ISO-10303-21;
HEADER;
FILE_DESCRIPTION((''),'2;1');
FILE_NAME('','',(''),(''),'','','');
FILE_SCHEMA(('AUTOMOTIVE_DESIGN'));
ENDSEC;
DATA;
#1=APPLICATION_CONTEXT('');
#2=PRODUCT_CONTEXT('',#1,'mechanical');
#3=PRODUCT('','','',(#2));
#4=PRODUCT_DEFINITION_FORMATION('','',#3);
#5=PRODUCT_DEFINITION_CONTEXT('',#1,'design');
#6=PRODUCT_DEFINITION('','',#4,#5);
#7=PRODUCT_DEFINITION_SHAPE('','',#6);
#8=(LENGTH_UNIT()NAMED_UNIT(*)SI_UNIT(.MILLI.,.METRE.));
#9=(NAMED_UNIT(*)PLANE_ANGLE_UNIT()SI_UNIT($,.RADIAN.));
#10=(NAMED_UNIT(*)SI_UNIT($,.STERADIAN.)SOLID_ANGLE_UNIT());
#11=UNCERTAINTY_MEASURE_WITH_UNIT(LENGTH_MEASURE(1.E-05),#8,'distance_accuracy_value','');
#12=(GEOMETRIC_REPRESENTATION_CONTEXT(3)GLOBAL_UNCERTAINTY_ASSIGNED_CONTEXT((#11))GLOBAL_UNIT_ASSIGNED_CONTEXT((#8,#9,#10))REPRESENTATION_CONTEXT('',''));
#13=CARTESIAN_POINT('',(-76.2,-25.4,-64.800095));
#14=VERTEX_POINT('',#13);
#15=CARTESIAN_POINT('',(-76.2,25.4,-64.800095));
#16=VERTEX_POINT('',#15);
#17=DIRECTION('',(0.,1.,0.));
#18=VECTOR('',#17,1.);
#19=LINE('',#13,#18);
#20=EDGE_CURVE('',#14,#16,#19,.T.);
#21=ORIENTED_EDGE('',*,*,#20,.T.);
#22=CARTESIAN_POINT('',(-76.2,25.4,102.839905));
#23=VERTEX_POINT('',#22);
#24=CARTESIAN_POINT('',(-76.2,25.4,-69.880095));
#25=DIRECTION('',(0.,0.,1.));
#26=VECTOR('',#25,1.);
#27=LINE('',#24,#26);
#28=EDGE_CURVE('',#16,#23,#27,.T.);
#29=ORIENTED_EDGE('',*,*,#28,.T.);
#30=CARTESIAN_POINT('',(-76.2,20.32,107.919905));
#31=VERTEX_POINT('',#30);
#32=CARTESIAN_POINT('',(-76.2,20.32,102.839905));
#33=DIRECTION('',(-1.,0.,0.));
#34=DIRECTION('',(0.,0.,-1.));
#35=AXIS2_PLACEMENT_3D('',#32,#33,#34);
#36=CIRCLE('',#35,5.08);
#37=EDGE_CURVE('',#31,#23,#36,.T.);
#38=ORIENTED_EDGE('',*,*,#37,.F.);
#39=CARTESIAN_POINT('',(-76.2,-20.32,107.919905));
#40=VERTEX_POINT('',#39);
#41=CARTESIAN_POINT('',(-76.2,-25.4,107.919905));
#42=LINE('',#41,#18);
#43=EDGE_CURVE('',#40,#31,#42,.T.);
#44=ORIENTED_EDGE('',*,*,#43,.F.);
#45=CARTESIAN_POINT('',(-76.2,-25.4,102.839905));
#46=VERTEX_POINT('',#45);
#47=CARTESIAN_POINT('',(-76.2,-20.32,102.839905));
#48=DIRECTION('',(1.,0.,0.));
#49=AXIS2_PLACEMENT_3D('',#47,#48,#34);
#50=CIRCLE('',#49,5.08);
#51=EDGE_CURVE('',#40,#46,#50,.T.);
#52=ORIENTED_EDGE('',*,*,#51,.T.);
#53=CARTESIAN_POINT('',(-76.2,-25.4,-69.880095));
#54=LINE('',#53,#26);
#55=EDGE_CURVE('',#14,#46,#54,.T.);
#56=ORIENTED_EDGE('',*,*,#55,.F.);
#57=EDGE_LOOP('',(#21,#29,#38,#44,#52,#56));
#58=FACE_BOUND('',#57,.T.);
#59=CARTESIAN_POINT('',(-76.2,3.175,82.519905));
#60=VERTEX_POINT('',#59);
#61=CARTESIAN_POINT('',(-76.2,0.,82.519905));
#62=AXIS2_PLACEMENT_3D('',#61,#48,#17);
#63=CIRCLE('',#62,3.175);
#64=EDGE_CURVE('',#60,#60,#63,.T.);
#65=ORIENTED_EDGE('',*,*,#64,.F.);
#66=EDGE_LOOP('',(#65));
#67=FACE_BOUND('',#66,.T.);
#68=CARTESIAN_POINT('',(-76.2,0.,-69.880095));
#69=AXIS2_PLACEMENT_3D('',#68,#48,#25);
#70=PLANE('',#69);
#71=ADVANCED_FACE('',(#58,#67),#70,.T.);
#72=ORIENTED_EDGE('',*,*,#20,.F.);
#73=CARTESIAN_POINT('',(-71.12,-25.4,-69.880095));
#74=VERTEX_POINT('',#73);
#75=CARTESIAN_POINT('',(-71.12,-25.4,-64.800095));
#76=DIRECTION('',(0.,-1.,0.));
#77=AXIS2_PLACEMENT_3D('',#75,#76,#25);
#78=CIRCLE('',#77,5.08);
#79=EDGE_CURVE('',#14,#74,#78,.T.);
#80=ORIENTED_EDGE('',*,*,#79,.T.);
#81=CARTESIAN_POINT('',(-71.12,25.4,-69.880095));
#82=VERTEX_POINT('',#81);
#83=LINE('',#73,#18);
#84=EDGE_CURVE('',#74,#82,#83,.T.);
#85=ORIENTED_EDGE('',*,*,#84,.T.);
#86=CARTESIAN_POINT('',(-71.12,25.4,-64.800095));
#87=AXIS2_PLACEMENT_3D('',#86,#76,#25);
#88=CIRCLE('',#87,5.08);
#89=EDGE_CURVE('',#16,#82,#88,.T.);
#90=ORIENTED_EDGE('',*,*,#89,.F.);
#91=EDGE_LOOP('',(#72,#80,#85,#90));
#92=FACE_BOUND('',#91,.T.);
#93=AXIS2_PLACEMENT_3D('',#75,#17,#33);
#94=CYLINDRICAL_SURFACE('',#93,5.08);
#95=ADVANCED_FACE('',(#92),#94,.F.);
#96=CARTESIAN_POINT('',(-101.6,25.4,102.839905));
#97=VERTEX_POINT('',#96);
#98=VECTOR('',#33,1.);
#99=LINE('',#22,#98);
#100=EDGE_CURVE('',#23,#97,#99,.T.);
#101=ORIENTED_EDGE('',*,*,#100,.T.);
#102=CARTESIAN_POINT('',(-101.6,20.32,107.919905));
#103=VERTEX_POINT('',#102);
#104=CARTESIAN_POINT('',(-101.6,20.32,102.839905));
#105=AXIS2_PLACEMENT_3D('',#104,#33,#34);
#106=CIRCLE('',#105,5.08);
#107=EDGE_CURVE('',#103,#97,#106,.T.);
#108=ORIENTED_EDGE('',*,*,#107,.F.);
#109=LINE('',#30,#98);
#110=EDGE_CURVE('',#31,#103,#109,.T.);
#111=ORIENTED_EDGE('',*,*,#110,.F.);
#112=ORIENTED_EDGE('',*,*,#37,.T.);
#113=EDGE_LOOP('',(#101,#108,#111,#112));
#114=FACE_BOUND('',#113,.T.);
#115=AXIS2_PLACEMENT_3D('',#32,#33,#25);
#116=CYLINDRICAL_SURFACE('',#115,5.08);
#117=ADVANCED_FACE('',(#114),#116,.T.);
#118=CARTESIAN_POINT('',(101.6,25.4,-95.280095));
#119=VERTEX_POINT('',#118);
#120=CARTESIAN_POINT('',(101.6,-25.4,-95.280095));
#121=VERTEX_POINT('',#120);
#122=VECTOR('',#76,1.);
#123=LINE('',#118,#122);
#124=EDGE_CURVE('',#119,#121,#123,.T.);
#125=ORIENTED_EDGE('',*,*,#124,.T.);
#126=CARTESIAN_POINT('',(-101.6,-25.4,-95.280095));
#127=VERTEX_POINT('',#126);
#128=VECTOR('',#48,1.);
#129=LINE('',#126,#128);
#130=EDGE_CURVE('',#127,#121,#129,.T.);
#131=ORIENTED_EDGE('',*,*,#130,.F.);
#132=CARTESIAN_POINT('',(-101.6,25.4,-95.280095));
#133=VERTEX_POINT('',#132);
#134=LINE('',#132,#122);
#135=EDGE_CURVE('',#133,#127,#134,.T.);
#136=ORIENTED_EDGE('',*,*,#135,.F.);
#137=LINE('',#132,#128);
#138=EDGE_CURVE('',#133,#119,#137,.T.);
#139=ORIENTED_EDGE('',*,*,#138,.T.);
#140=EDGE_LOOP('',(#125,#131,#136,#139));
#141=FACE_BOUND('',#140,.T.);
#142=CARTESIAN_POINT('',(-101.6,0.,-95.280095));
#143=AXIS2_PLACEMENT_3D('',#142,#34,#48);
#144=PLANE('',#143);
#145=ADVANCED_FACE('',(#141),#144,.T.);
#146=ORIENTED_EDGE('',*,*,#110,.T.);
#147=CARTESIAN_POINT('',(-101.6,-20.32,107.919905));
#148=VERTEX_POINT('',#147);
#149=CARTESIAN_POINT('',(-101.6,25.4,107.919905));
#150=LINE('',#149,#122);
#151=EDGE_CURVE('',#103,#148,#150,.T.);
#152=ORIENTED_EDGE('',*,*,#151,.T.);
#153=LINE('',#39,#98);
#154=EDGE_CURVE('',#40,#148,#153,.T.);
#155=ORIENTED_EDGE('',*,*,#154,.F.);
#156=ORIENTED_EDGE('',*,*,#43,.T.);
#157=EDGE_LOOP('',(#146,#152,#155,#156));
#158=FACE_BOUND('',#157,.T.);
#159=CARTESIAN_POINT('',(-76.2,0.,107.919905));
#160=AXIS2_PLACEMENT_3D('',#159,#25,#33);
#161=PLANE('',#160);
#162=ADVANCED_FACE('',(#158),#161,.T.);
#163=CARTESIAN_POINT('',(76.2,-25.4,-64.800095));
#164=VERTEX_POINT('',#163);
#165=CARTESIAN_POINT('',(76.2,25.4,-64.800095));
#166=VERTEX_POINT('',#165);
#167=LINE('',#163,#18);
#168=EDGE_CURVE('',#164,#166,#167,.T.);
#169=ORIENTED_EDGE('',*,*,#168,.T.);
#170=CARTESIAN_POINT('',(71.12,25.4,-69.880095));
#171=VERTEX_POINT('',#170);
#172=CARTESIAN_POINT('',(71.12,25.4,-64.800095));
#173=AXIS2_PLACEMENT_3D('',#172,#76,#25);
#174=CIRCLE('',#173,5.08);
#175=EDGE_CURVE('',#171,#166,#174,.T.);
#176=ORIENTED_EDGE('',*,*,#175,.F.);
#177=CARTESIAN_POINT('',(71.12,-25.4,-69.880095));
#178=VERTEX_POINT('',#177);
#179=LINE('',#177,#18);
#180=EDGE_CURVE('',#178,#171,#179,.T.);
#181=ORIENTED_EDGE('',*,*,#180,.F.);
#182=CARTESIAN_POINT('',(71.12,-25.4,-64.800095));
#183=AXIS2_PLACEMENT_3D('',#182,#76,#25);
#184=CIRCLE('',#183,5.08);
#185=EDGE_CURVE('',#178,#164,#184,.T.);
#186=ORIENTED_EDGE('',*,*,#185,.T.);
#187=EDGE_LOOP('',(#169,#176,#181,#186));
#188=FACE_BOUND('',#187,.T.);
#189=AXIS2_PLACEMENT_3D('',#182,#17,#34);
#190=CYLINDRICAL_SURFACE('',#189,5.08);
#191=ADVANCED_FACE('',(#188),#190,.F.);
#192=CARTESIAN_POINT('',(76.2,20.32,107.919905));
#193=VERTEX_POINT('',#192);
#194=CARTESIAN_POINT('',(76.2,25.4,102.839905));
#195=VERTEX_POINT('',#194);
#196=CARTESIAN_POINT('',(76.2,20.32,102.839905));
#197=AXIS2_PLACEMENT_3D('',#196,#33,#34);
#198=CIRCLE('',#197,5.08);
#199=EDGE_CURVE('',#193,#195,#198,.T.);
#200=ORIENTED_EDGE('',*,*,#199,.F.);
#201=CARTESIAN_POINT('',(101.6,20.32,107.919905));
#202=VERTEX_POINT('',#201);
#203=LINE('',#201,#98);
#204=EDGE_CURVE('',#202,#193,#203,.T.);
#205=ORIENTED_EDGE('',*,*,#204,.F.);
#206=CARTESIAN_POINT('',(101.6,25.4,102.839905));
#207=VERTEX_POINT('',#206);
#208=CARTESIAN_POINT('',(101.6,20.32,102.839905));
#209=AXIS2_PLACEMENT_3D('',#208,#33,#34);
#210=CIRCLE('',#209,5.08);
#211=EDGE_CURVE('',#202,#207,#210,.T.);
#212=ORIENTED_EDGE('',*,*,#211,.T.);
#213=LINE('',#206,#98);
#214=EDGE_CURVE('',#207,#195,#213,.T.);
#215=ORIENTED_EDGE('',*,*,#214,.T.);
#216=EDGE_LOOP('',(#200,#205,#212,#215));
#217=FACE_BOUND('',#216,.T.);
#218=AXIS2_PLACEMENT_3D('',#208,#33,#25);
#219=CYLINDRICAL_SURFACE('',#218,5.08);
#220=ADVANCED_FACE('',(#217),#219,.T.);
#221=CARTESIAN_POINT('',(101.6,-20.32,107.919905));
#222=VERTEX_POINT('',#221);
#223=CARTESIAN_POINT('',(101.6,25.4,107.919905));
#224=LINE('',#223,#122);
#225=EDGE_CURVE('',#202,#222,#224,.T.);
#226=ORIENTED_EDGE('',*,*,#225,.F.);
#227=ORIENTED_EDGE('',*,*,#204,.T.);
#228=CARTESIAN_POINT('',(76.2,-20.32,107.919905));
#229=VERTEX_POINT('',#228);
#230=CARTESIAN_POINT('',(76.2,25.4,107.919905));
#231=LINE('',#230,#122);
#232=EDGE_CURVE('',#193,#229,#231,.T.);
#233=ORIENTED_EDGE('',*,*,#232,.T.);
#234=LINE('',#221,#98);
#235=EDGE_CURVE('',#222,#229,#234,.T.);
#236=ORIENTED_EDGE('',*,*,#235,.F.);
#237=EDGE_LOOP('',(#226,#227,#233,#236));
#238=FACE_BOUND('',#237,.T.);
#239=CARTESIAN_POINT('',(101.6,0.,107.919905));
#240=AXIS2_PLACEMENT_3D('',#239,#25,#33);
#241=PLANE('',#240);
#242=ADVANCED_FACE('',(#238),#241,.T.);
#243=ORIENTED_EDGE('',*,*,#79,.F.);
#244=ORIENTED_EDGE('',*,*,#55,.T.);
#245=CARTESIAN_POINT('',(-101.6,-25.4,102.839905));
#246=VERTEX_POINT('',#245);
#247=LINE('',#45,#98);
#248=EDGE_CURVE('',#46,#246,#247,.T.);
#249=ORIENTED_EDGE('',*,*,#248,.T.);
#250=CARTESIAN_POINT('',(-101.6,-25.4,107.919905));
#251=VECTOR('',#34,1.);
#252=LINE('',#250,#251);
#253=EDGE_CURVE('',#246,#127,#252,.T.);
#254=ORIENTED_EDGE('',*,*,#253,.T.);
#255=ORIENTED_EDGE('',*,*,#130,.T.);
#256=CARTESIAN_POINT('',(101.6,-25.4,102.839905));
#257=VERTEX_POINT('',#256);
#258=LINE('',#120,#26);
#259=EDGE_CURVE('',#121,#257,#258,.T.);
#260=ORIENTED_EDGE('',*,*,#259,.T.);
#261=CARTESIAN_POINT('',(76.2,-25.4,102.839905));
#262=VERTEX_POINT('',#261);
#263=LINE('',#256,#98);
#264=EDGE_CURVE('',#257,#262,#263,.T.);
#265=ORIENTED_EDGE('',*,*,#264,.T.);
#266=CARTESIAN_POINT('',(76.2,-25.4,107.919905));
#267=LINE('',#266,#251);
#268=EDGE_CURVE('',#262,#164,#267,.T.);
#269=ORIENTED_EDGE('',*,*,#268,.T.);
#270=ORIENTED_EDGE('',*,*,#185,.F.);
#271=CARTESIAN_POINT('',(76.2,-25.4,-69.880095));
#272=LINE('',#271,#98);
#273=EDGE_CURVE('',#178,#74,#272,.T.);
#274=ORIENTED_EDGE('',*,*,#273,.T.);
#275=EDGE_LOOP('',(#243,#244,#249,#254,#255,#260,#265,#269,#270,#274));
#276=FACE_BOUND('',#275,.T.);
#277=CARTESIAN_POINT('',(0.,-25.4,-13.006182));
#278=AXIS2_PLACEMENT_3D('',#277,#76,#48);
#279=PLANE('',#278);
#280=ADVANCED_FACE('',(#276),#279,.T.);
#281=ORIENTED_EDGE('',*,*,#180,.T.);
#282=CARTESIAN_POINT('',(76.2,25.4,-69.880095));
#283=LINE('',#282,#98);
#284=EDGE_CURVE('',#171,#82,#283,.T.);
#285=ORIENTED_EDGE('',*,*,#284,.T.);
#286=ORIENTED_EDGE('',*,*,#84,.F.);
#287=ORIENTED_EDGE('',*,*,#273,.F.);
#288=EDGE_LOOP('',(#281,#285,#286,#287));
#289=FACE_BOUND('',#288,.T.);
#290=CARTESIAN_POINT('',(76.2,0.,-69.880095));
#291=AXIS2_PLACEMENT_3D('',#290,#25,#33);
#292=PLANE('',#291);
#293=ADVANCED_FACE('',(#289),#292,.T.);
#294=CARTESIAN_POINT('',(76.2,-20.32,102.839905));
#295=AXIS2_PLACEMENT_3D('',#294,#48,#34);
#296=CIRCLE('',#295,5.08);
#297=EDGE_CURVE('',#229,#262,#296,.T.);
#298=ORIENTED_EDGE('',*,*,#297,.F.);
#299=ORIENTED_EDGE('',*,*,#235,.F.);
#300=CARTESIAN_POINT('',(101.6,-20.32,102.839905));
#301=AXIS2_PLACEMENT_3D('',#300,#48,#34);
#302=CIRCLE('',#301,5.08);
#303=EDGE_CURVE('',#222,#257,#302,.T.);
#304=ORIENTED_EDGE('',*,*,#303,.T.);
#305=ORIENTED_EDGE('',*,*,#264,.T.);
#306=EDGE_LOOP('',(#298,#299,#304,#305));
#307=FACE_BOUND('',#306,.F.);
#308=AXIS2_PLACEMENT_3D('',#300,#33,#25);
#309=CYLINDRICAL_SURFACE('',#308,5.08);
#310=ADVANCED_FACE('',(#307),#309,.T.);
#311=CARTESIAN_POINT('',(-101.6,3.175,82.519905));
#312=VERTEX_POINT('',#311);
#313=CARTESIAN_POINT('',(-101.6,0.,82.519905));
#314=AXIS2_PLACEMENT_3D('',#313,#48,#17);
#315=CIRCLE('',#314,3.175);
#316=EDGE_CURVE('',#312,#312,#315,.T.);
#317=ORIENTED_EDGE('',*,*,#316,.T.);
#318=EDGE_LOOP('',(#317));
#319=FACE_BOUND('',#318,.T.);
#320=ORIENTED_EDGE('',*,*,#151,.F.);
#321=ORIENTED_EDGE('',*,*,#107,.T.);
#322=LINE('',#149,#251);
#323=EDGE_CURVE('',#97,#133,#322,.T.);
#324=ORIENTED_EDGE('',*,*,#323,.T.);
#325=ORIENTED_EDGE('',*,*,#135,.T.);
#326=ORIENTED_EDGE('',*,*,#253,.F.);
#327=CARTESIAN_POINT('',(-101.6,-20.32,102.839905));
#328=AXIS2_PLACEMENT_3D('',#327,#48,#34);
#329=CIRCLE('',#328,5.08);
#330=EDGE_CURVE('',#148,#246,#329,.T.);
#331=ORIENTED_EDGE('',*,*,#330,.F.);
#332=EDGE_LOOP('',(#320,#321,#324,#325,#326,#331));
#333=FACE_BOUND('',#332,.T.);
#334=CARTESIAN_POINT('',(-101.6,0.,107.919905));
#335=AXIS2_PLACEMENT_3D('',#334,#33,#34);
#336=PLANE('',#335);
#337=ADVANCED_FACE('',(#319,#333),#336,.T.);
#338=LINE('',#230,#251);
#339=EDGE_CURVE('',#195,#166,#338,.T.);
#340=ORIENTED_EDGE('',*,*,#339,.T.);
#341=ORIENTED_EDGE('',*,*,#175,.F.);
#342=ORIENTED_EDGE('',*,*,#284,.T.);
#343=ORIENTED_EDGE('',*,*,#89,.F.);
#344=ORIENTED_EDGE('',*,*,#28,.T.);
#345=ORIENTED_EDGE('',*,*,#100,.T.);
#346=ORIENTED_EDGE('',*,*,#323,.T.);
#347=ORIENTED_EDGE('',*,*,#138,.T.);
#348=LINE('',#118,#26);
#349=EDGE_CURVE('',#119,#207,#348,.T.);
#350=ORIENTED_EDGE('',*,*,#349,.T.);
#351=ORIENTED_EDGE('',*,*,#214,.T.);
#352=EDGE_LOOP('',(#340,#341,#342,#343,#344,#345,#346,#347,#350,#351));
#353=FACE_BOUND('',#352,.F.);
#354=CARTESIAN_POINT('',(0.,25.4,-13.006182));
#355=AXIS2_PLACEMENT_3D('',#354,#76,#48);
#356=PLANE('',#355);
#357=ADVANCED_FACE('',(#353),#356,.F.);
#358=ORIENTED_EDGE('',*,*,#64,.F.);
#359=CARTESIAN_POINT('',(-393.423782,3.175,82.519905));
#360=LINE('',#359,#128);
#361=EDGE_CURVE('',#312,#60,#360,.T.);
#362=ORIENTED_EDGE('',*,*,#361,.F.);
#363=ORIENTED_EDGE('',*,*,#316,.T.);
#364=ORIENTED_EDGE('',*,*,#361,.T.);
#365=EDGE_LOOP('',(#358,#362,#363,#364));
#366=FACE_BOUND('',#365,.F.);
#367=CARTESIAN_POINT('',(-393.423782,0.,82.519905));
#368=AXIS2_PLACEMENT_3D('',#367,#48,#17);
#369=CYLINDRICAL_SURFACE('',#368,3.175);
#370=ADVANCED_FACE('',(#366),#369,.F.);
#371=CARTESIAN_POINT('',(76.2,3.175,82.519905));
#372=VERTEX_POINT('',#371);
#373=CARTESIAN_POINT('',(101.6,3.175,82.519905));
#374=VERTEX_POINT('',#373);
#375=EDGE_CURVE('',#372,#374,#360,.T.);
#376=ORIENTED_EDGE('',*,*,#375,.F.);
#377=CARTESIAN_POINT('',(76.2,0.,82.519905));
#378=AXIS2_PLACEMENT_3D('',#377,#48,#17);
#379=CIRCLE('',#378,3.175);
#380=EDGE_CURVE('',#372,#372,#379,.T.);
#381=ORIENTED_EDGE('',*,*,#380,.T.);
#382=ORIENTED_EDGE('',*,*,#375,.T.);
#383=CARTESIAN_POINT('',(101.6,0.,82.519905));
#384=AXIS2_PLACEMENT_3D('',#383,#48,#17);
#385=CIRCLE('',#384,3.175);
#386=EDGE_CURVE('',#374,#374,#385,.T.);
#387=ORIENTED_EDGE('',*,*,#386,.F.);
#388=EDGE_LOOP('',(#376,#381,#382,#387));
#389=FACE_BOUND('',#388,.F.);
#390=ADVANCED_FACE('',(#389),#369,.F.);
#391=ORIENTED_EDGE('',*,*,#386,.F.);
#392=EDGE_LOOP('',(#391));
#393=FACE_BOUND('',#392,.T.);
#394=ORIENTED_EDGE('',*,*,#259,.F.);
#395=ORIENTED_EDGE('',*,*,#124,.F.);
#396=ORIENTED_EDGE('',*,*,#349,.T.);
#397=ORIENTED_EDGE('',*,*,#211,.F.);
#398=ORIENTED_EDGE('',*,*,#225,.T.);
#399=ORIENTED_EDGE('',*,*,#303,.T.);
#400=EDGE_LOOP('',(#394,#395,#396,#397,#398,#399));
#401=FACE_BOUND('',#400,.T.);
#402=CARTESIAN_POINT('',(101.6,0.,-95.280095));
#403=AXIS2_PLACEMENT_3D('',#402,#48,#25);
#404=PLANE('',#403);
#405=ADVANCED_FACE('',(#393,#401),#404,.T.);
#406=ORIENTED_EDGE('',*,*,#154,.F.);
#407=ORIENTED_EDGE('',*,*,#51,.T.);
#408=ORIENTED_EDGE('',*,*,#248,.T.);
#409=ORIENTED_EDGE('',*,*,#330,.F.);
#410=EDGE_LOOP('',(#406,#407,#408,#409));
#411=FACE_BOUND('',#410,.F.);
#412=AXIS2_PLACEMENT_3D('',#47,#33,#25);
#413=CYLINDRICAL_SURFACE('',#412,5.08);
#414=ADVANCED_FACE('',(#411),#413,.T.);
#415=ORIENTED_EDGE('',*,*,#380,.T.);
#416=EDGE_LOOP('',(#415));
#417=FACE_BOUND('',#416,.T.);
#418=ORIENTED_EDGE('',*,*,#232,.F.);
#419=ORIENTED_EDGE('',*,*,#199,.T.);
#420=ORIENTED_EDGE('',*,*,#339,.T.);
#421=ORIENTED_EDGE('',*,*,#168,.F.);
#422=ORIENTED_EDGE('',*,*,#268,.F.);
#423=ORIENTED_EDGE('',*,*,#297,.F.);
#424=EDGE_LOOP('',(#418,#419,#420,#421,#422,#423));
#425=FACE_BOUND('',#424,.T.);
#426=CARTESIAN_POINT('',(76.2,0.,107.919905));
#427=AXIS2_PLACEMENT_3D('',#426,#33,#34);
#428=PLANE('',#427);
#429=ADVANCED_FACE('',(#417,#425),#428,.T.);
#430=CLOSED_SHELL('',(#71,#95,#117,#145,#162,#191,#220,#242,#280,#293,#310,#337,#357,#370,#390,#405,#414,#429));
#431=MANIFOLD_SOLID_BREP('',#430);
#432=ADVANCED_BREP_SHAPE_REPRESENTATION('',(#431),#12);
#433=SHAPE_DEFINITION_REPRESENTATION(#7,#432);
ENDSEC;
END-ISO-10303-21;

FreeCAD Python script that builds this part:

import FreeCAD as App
import Part
import Sketcher
from FreeCAD import Vector
Q = App.Units.Quantity


def edges_at(feature, points):
    """Names of the edges that pass closest to the given points."""
    edges = feature.Shape.Edges
    near = lambda p: min(range(len(edges)), key=lambda i: edges[i].distToShape(Part.Vertex(*p))[0])
    return sorted({f"Edge{near(p) + 1}" for p in points})

doc = App.newDocument("Part")
body = doc.addObject("PartDesign::Body", "Body")

sketch1 = doc.addObject("Sketcher::SketchObject", "Sketch")
body.addObject(sketch1)
sketch1.AttachmentSupport = (doc.XZ_Plane, [""])
sketch1.MapMode = "FlatFace"
sketch1.addGeometry([
    Part.LineSegment(Vector(-76, 108, 0), Vector(-102, 108, 0)),
    Part.LineSegment(Vector(-102, 108, 0), Vector(-102, -95, 0)),
    Part.LineSegment(Vector(-102, -95, 0), Vector(102, -95, 0)),
    Part.LineSegment(Vector(102, -95, 0), Vector(102, 108, 0)),
    Part.LineSegment(Vector(102, 108, 0), Vector(76, 108, 0)),
    Part.LineSegment(Vector(76, 108, 0), Vector(76, -70, 0)),
    Part.LineSegment(Vector(76, -70, 0), Vector(-76, -70, 0)),
    Part.LineSegment(Vector(-76, -70, 0), Vector(-76, 108, 0)),
], False)
sketch1.addConstraint([
    Sketcher.Constraint("Coincident", 0, 2, 1, 1),
    Sketcher.Constraint("Coincident", 1, 2, 2, 1),
    Sketcher.Constraint("Coincident", 2, 2, 3, 1),
    Sketcher.Constraint("Coincident", 3, 2, 4, 1),
    Sketcher.Constraint("Coincident", 4, 2, 5, 1),
    Sketcher.Constraint("Coincident", 5, 2, 6, 1),
    Sketcher.Constraint("Coincident", 6, 2, 7, 1),
    Sketcher.Constraint("Coincident", 7, 2, 0, 1),
    Sketcher.Constraint("Horizontal", 0),
    Sketcher.Constraint("Vertical", 1),
    Sketcher.Constraint("Horizontal", 2),
    Sketcher.Constraint("Vertical", 3),
    Sketcher.Constraint("Horizontal", 4),
    Sketcher.Constraint("Vertical", 5),
    Sketcher.Constraint("Horizontal", 6),
    Sketcher.Constraint("Vertical", 7),
    Sketcher.Constraint("Symmetric", 0, 2, 3, 2, -2),
    Sketcher.Constraint("Equal", 0, 4),
    Sketcher.Constraint("Equal", 2, 1),
    Sketcher.Constraint("DistanceX", 0, 2, 0, 1, Q("1 in")),
    Sketcher.Constraint("DistanceX", 2, 1, 2, 2, Q("8 in")),
    Sketcher.Constraint("DistanceY", 5, 2, 5, 1, Q("7 in")),
    Sketcher.Constraint("DistanceY", -1, 1, 0, 2, 107.919905),
])
pad1 = doc.addObject("PartDesign::Pad", "Pad")
body.addObject(pad1)
pad1.Profile = sketch1
pad1.Type = "TwoLengths"
pad1.Length = Q("1 in")
pad1.Length2 = Q("1 in")
doc.recompute()

fillet = doc.addObject("PartDesign::Fillet", "Fillet")
body.addObject(fillet)
fillet.Base = (pad1, edges_at(pad1, [
    (-88.9, -25.4, 107.92),
    (-88.9, 25.4, 107.92),
    (88.9, -25.4, 107.92),
    (88.9, 25.4, 107.92),
    (-76.2, 0, -69.88),
    (76.2, 0, -69.88),
]))
fillet.Radius = Q("0.2 in")

sketch2 = doc.addObject("Sketcher::SketchObject", "Sketch001")
body.addObject(sketch2)
sketch2.AttachmentSupport = (doc.YZ_Plane, [""])
sketch2.MapMode = "FlatFace"
sketch2.AttachmentOffset = App.Placement(Vector(0, 0, -4 * 25.4), App.Rotation())
sketch2.addGeometry(Part.Circle(Vector(0, 82.5, 0), Vector(0, 0, 1), 3.2), False)
sketch2.addConstraint([
    Sketcher.Constraint("PointOnObject", 0, 3, -2),
    Sketcher.Constraint("Diameter", 0, Q("0.25 in")),
    Sketcher.Constraint("DistanceY", -1, 1, 0, 3, 82.519905),
])
doc.recompute()
hole = doc.addObject("PartDesign::Hole", "Hole")
body.addObject(hole)
hole.Profile = sketch2
hole.ThreadType = "None"
hole.Diameter = Q("0.25 in")
hole.DepthType = "ThroughAll"
hole.Reversed = True

doc.recompute()
